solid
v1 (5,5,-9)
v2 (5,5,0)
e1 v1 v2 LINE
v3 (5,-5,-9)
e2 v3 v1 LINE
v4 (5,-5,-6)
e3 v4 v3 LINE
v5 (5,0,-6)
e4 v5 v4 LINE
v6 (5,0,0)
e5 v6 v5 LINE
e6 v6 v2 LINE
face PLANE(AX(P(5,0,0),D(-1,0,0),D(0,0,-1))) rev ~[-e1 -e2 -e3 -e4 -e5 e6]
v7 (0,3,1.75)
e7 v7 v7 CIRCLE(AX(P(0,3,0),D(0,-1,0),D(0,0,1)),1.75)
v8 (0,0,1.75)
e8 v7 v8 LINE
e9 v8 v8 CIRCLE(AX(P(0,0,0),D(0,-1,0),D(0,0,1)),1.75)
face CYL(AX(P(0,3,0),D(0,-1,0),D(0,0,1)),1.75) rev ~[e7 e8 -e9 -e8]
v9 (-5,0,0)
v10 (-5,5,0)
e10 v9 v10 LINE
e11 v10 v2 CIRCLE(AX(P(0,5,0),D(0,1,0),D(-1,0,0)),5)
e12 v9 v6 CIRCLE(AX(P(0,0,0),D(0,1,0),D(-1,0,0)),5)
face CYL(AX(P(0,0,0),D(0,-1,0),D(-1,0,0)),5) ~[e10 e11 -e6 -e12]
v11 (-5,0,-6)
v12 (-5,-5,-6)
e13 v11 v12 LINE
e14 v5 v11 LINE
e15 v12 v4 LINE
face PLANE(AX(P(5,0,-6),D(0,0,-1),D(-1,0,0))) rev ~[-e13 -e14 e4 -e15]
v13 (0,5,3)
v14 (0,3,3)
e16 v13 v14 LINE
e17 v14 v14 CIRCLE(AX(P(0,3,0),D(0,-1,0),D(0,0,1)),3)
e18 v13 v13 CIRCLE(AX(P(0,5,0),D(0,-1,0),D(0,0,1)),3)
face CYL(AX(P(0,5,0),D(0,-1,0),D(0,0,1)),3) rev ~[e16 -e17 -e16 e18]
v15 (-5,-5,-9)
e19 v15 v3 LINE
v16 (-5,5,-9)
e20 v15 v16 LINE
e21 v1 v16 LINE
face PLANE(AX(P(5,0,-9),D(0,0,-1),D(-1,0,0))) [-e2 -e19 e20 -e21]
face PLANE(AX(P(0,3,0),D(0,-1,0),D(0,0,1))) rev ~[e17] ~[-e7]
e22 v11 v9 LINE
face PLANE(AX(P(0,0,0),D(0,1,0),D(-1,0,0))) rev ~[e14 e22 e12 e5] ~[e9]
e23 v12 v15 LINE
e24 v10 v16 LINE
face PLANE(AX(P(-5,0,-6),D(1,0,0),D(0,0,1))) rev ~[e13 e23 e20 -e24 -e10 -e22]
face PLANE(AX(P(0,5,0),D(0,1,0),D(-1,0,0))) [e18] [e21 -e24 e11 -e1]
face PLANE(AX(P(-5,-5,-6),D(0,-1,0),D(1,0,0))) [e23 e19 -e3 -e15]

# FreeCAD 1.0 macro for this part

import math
import FreeCAD as App
import Part
import Sketcher
from FreeCAD import Vector
Q = App.Units.Quantity

doc = App.newDocument("Part")
params = doc.addObject("Spreadsheet::Sheet", "Params")
for row, (alias, value) in enumerate([
    ("sketch1_radius", "5 mm"),
    ("sketch1_height", "6 mm"),
    ("pad1_length", "5 mm"),
    ("pad2_length", "3 mm"),
    ("sketch3_diameter", "3.5 mm"),
    ("hole_diameter", "3.5 mm"),
    ("hole_cbore_diameter", "6 mm"),
    ("hole_cbore_depth", "2 mm"),
], start=1):
    params.set(f"A{row}", alias)
    params.set(f"B{row}", "=" + value)
    params.setAlias(f"B{row}", alias)

body = doc.addObject("PartDesign::Body", "Body")

# Sketch on XZ plane
sketch1 = body.newObject("Sketcher::SketchObject", "Sketch")
sketch1.AttachmentSupport = (doc.getObject("XZ_Plane"), [""])
sketch1.MapMode = "FlatFace"
sketch1.addGeometry([
    Part.ArcOfCircle(Part.Circle(Vector(0, 0, 0), Vector(0, 0, 1), 5), math.radians(0), math.radians(180)),
    Part.LineSegment(Vector(5, 0, 0), Vector(5, -6, 0)),
    Part.LineSegment(Vector(5, -6, 0), Vector(-5, -6, 0)),
    Part.LineSegment(Vector(-5, -6, 0), Vector(-5, 0, 0)),
], False)
sketch1.addConstraint([
    Sketcher.Constraint("Tangent", 0, 1, 1, 1),
    Sketcher.Constraint("Coincident", 1, 2, 2, 1),
    Sketcher.Constraint("Coincident", 2, 2, 3, 1),
    Sketcher.Constraint("Tangent", 3, 2, 0, 2),
    Sketcher.Constraint("Vertical", 1),
    Sketcher.Constraint("Horizontal", 2),
    Sketcher.Constraint("Vertical", 3),
    Sketcher.Constraint("Coincident", 0, 3, -1, 1),
    Sketcher.Constraint("Radius", 0, Q("5 mm")),
    Sketcher.Constraint("DistanceY", 1, 2, 1, 1, Q("6 mm")),
])
sketch1.setExpression("Constraints[8]", "Params.sketch1_radius")
sketch1.setExpression("Constraints[9]", "Params.sketch1_height")
pad1 = body.newObject("PartDesign::Pad", "Pad")
pad1.Profile = sketch1
pad1.setExpression("Length", "Params.pad1_length")
pad1.Reversed = True

# Sketch on XY plane
sketch2 = body.newObject("Sketcher::SketchObject", "Sketch001")
sketch2.AttachmentSupport = (doc.getObject("XY_Plane"), [""])
sketch2.MapMode = "FlatFace"
sketch2.AttachmentOffset = App.Placement(Vector(0, 0, -6), App.Rotation())
sketch2.addGeometry([
    Part.LineSegment(Vector(5, 5, 0), Vector(5, -5, 0)),
    Part.LineSegment(Vector(5, -5, 0), Vector(-5, -5, 0)),
    Part.LineSegment(Vector(-5, -5, 0), Vector(-5, 5, 0)),
    Part.LineSegment(Vector(-5, 5, 0), Vector(5, 5, 0)),
], False)
sketch2.addConstraint([
    Sketcher.Constraint("Coincident", 0, 2, 1, 1),
    Sketcher.Constraint("Coincident", 1, 2, 2, 1),
    Sketcher.Constraint("Coincident", 2, 2, 3, 1),
    Sketcher.Constraint("Coincident", 3, 2, 0, 1),
    Sketcher.Constraint("Vertical", 0),
    Sketcher.Constraint("Horizontal", 1),
    Sketcher.Constraint("Vertical", 2),
    Sketcher.Constraint("Horizontal", 3),
    Sketcher.Constraint("Symmetric", 0, 2, 2, 2, -1, 1),
    Sketcher.Constraint("Equal", 3, 0),
    Sketcher.Constraint("DistanceX", -1, 1, 0, 2, Q("5 mm")),
])
pad2 = body.newObject("PartDesign::Pad", "Pad001")
pad2.Profile = sketch2
pad2.setExpression("Length", "Params.pad2_length")
pad2.Reversed = True

# Sketch on XZ plane
sketch3 = body.newObject("Sketcher::SketchObject", "Sketch002")
sketch3.AttachmentSupport = (doc.getObject("XZ_Plane"), [""])
sketch3.MapMode = "FlatFace"
sketch3.AttachmentOffset = App.Placement(Vector(0, 0, -5), App.Rotation())
sketch3.addGeometry(Part.Circle(Vector(0, 0, 0), Vector(0, 0, 1), 1.75), False)
sketch3.addConstraint([
    Sketcher.Constraint("Coincident", 0, 3, -1, 1),
    Sketcher.Constraint("Diameter", 0, Q("3.5 mm")),
])
sketch3.setExpression("Constraints[1]", "Params.sketch3_diameter")
doc.recompute()
hole = body.newObject("PartDesign::Hole", "Hole")
hole.Profile = sketch3
hole.ThreadType = "None"
hole.setExpression("Diameter", "Params.hole_diameter")
hole.DepthType = "ThroughAll"
hole.HoleCutType = "Counterbore"
hole.setExpression("HoleCutDiameter", "Params.hole_cbore_diameter")
hole.setExpression("HoleCutDepth", "Params.hole_cbore_depth")
hole.Reversed = True

doc.recompute()
